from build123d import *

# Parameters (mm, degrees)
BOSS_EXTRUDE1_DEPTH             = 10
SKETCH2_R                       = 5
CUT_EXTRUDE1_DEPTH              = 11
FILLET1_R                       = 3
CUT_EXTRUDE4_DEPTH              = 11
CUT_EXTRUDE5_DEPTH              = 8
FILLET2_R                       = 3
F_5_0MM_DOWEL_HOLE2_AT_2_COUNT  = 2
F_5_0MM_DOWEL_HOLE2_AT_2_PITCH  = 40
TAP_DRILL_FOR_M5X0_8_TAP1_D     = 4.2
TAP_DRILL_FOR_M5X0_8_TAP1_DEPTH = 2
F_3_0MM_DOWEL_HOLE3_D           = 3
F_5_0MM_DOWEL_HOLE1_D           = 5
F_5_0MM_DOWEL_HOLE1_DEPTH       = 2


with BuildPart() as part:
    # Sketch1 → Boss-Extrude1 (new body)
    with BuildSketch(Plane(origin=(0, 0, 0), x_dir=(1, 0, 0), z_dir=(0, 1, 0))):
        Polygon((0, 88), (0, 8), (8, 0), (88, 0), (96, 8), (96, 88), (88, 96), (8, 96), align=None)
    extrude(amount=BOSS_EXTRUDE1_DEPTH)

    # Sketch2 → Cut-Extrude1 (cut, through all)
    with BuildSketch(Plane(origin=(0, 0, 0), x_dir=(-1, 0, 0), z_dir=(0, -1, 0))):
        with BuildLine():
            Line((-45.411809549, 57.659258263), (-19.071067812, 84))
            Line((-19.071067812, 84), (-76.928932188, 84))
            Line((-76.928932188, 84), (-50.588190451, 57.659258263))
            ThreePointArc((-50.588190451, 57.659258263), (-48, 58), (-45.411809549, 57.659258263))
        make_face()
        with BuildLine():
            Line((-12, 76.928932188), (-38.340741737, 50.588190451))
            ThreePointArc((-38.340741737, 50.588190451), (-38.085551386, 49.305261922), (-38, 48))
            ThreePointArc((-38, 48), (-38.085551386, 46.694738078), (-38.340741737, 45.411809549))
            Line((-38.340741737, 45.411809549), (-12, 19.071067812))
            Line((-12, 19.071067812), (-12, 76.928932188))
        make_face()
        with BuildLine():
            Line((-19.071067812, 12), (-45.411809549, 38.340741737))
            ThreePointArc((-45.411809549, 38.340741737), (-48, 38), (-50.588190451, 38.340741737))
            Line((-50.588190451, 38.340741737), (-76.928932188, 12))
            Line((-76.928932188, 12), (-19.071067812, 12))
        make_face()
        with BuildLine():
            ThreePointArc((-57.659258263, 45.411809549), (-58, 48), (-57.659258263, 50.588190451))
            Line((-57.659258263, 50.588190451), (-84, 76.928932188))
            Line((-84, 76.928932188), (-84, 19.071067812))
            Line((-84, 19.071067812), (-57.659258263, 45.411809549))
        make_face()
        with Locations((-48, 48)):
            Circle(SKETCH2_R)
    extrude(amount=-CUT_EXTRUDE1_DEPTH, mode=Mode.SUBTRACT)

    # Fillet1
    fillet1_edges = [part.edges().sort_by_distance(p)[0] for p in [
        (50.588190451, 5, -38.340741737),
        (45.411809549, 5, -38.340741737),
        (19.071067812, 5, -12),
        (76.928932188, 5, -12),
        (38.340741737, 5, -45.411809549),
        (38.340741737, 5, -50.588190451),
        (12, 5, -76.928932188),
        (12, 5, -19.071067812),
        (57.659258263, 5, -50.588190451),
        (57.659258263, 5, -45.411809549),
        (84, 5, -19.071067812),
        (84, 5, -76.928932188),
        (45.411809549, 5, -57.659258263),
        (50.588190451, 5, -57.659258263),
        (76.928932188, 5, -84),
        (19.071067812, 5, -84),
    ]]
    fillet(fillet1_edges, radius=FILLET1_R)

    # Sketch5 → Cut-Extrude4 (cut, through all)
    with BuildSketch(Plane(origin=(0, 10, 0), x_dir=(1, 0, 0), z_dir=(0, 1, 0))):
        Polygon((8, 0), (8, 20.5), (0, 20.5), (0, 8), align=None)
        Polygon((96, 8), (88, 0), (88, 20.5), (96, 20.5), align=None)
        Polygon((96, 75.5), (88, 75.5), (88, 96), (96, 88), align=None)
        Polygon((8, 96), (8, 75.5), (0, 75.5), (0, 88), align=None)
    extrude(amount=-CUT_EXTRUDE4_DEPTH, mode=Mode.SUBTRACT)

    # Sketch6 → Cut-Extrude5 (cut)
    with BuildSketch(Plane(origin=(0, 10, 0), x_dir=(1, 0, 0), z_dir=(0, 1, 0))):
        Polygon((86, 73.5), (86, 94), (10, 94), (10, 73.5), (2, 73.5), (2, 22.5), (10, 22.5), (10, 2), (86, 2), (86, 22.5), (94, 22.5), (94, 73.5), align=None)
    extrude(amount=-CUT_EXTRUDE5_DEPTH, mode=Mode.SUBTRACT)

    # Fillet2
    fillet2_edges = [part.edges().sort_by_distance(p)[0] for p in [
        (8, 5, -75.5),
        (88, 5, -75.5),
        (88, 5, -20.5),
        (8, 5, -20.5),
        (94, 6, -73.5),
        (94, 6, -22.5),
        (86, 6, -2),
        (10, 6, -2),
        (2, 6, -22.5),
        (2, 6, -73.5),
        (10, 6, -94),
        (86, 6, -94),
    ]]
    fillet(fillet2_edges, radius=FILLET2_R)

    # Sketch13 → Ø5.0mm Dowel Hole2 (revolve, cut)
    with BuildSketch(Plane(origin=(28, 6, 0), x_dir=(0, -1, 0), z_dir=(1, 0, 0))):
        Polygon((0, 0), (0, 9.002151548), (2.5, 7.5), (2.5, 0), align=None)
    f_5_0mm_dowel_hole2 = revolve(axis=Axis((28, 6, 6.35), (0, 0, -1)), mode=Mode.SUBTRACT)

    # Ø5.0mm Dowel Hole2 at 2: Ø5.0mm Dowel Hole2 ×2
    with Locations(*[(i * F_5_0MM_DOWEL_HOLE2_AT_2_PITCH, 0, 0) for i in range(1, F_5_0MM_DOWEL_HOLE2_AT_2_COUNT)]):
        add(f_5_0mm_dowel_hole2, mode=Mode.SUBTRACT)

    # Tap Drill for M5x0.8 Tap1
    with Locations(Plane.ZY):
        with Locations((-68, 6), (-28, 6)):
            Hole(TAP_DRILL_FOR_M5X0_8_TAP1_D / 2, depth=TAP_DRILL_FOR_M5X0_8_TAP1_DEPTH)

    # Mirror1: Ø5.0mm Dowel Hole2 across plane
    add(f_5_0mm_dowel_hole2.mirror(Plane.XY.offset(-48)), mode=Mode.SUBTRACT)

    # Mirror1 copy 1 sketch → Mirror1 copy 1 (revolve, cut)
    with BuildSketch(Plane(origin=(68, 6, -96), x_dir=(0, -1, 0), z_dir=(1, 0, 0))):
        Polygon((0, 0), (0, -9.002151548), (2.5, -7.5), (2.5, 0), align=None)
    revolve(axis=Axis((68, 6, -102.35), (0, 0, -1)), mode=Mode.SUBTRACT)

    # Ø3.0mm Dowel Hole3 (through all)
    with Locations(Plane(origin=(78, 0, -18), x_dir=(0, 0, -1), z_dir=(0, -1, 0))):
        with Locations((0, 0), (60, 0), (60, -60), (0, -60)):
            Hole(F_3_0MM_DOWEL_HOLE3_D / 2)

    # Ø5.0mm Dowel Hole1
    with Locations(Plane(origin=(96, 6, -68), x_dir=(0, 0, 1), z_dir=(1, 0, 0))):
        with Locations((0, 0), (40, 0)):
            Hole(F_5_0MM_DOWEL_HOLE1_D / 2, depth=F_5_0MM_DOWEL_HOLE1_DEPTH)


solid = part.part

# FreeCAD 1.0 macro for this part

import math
import FreeCAD as App
import Part
import Sketcher
from FreeCAD import Vector
Q = App.Units.Quantity


def edges_at(feature, points):
    """Names of the edges that pass closest to the given points."""
    edges = feature.Shape.Edges
    near = lambda p: min(range(len(edges)), key=lambda i: edges[i].distToShape(Part.Vertex(*p))[0])
    return sorted({f"Edge{near(p) + 1}" for p in points})


def add_polygon(sketch, points):
    """Adds a closed chain of lines whose ends are joined by coincident constraints."""
    first, n = sketch.GeometryCount, len(points)
    for a, b in zip(points, points[1:] + points[:1]):
        sketch.addGeometry(Part.LineSegment(App.Vector(*a, 0), App.Vector(*b, 0)), False)
    for i in range(n):
        sketch.addConstraint(Sketcher.Constraint("Coincident", first + i, 2, first + (i + 1) % n, 1))

doc = App.newDocument("Part")
body = doc.addObject("PartDesign::Body", "Body")

sketch1 = doc.addObject("Sketcher::SketchObject", "Sketch")
body.addObject(sketch1)
sketch1.AttachmentSupport = (doc.XZ_Plane, [""])
sketch1.MapMode = "FlatFace"
add_polygon(sketch1, [(0, -88), (0, -8), (8, 0), (88, 0), (96, -8), (96, -88), (88, -96), (8, -96)])
sketch1.addConstraint([
    Sketcher.Constraint("Vertical", 0),
    Sketcher.Constraint("Horizontal", 2),
    Sketcher.Constraint("Vertical", 4),
    Sketcher.Constraint("Horizontal", 6),
    Sketcher.Constraint("PointOnObject", 0, 2, -2),
    Sketcher.Constraint("PointOnObject", 1, 2, -1),
    Sketcher.Constraint("Perpendicular", 1, 3),
    Sketcher.Constraint("Perpendicular", 3, 5),
    Sketcher.Constraint("Perpendicular", 5, 7),
    Sketcher.Constraint("Horizontal", 0, 2, 3, 2),
    Sketcher.Constraint("Horizontal", 4, 2, 7, 2),
    Sketcher.Constraint("Vertical", 2, 2, 5, 2),
    Sketcher.Constraint("Vertical", 1, 2, 6, 2),
    Sketcher.Constraint("Equal", 6, 0),
    Sketcher.Constraint("DistanceX", 2, 1, 2, 2, Q("80 mm")),
    Sketcher.Constraint("DistanceY", 0, 2, -1, 1, Q("8 mm")),
])
pad1 = doc.addObject("PartDesign::Pad", "Pad")
body.addObject(pad1)
pad1.Profile = sketch1
pad1.Length = 10
pad1.Reversed = True

sketch2 = doc.addObject("Sketcher::SketchObject", "Sketch001")
body.addObject(sketch2)
sketch2.AttachmentSupport = (doc.XZ_Plane, [""])
sketch2.MapMode = "FlatFace"
sketch2.addGeometry([
    Part.LineSegment(Vector(45.4, -57.7, 0), Vector(19.1, -84, 0)),
    Part.LineSegment(Vector(19.1, -84, 0), Vector(76.9, -84, 0)),
    Part.LineSegment(Vector(76.9, -84, 0), Vector(50.6, -57.7, 0)),
    Part.ArcOfCircle(Part.Circle(Vector(48, -48, 0), Vector(0, 0, 1), 10), math.radians(-105), math.radians(-75)),
    Part.LineSegment(Vector(12, -76.9, 0), Vector(38.3, -50.6, 0)),
    Part.ArcOfCircle(Part.Circle(Vector(48, -48, 0), Vector(0, 0, 1), 10), math.radians(180), math.radians(195)),
    Part.ArcOfCircle(Part.Circle(Vector(48, -48, 0), Vector(0, 0, 1), 10), math.radians(165), math.radians(180)),
    Part.LineSegment(Vector(38.3, -45.4, 0), Vector(12, -19.1, 0)),
    Part.LineSegment(Vector(12, -19.1, 0), Vector(12, -76.9, 0)),
    Part.LineSegment(Vector(19.1, -12, 0), Vector(45.4, -38.3, 0)),
    Part.ArcOfCircle(Part.Circle(Vector(48, -48, 0), Vector(0, 0, 1), 10), math.radians(75), math.radians(105)),
    Part.LineSegment(Vector(50.6, -38.3, 0), Vector(76.9, -12, 0)),
    Part.LineSegment(Vector(76.9, -12, 0), Vector(19.1, -12, 0)),
    Part.ArcOfCircle(Part.Circle(Vector(48, -48, 0), Vector(0, 0, 1), 10), math.radians(-15), math.radians(15)),
    Part.LineSegment(Vector(57.7, -50.6, 0), Vector(84, -76.9, 0)),
    Part.LineSegment(Vector(84, -76.9, 0), Vector(84, -19.1, 0)),
    Part.LineSegment(Vector(84, -19.1, 0), Vector(57.7, -45.4, 0)),
    Part.Circle(Vector(48, -48, 0), Vector(0, 0, 1), 5),
], False)
sketch2.addConstraint([
    Sketcher.Constraint("Coincident", 0, 2, 1, 1),
    Sketcher.Constraint("Coincident", 1, 2, 2, 1),
    Sketcher.Constraint("Coincident", 2, 2, 3, 2),
    Sketcher.Constraint("Coincident", 3, 1, 0, 1),
    Sketcher.Constraint("Coincident", 4, 2, 5, 2),
    Sketcher.Constraint("Tangent", 5, 1, 6, 2),
    Sketcher.Constraint("Coincident", 6, 1, 7, 1),
    Sketcher.Constraint("Coincident", 7, 2, 8, 1),
    Sketcher.Constraint("Coincident", 8, 2, 4, 1),
    Sketcher.Constraint("Coincident", 9, 2, 10, 2),
    Sketcher.Constraint("Coincident", 10, 1, 11, 1),
    Sketcher.Constraint("Coincident", 11, 2, 12, 1),
    Sketcher.Constraint("Coincident", 12, 2, 9, 1),
    Sketcher.Constraint("Coincident", 13, 1, 14, 1),
    Sketcher.Constraint("Coincident", 14, 2, 15, 1),
    Sketcher.Constraint("Coincident", 15, 2, 16, 1),
    Sketcher.Constraint("Coincident", 16, 2, 13, 2),
    Sketcher.Constraint("Horizontal", 1),
    Sketcher.Constraint("Vertical", 8),
    Sketcher.Constraint("Horizontal", 12),
    Sketcher.Constraint("Vertical", 15),
    Sketcher.Constraint("Coincident", 5, 3, 3, 3),
    Sketcher.Constraint("Coincident", 10, 3, 3, 3),
    Sketcher.Constraint("Coincident", 13, 3, 3, 3),
    Sketcher.Constraint("Coincident", 17, 3, 3, 3),
    Sketcher.Constraint("Equal", 3, 5),
    Sketcher.Constraint("Equal", 5, 6),
    Sketcher.Constraint("Equal", 6, 10),
    Sketcher.Constraint("Equal", 10, 13),
    Sketcher.Constraint("Perpendicular", 0, 2),
    Sketcher.Constraint("Perpendicular", 2, 4),
    Sketcher.Constraint("Perpendicular", 4, 7),
    Sketcher.Constraint("Parallel", 7, 9),
    Sketcher.Constraint("Perpendicular", 9, 11),
    Sketcher.Constraint("Perpendicular", 11, 14),
    Sketcher.Constraint("Perpendicular", 14, 16),
    Sketcher.Constraint("Horizontal", 2, 2, 3, 1),
    Sketcher.Constraint("Horizontal", 17, 3, 5, 1),
    Sketcher.Constraint("Horizontal", 9, 2, 10, 1),
    Sketcher.Constraint("Horizontal", 4, 2, 13, 1),
    Sketcher.Constraint("Horizontal", 8, 2, 14, 2),
    Sketcher.Constraint("Horizontal", 7, 2, 15, 2),
    Sketcher.Constraint("Horizontal", 6, 1, 16, 2),
    Sketcher.Constraint("Vertical", 4, 2, 6, 1),
    Sketcher.Constraint("Vertical", 3, 1, 9, 2),
    Sketcher.Constraint("Vertical", 1, 2, 11, 2),
    Sketcher.Constraint("Equal", 12, 8),
    Sketcher.Constraint("Equal", 2, 4),
    Sketcher.Constraint("Diameter", 17, Q("10 mm")),
    Sketcher.Constraint("Radius", 3, Q("10 mm")),
    Sketcher.Constraint("DistanceX", -1, 1, 3, 3, Q("48 mm")),
    Sketcher.Constraint("DistanceY", 3, 3, -1, 1, Q("48 mm")),
    Sketcher.Constraint("DistanceY", 0, 2, -1, 1, Q("84 mm")),
    Sketcher.Constraint("DistanceX", 1, 1, 1, 2, Q("57.857864 mm")),
])
pocket1 = doc.addObject("PartDesign::Pocket", "Pocket")
body.addObject(pocket1)
pocket1.Profile = sketch2
pocket1.Type = "ThroughAll"
doc.recompute()

fillet = doc.addObject("PartDesign::Fillet", "Fillet")
body.addObject(fillet)
fillet.Base = (pocket1, edges_at(pocket1, [
    (50.588, 5, -38.341),
    (45.412, 5, -38.341),
    (19.071, 5, -12),
    (76.929, 5, -12),
    (38.341, 5, -45.412),
    (38.341, 5, -50.588),
    (12, 5, -76.929),
    (12, 5, -19.071),
    (57.659, 5, -50.588),
    (57.659, 5, -45.412),
    (84, 5, -19.071),
    (84, 5, -76.929),
    (45.412, 5, -57.659),
    (50.588, 5, -57.659),
    (76.929, 5, -84),
    (19.071, 5, -84),
]))
fillet.Radius = 3

sketch3 = doc.addObject("Sketcher::SketchObject", "Sketch002")
body.addObject(sketch3)
sketch3.AttachmentSupport = (doc.XZ_Plane, [""])
sketch3.MapMode = "FlatFace"
sketch3.AttachmentOffset = App.Placement(Vector(0, 0, -10), App.Rotation())
add_polygon(sketch3, [(8, 0), (8, -20), (0, -20), (0, -8)])
add_polygon(sketch3, [(88, 0), (96, -8), (96, -20), (88, -20)])
add_polygon(sketch3, [(88, -76), (96, -76), (96, -88), (88, -96)])
add_polygon(sketch3, [(8, -76), (8, -96), (0, -88), (0, -76)])
sketch3.addConstraint([
    Sketcher.Constraint("Vertical", 0),
    Sketcher.Constraint("Horizontal", 1),
    Sketcher.Constraint("Vertical", 2),
    Sketcher.Constraint("Vertical", 5),
    Sketcher.Constraint("Horizontal", 6),
    Sketcher.Constraint("Vertical", 7),
    Sketcher.Constraint("Horizontal", 8),
    Sketcher.Constraint("Vertical", 9),
    Sketcher.Constraint("Vertical", 11),
    Sketcher.Constraint("Vertical", 12),
    Sketcher.Constraint("Vertical", 14),
    Sketcher.Constraint("Horizontal", 15),
    Sketcher.Constraint("PointOnObject", 1, 2, -2),
    Sketcher.Constraint("PointOnObject", 3, 2, -1),
    Sketcher.Constraint("PointOnObject", 7, 2, -1),
    Sketcher.Constraint("PointOnObject", 13, 2, -2),
    Sketcher.Constraint("Perpendicular", 3, 4),
    Sketcher.Constraint("Perpendicular", 4, 10),
    Sketcher.Constraint("Perpendicular", 10, 13),
    Sketcher.Constraint("Horizontal", 2, 2, 4, 2),
    Sketcher.Constraint("Horizontal", 1, 2, 5, 2),
    Sketcher.Constraint("Horizontal", 10, 2, 12, 2),
    Sketcher.Constraint("Horizontal", 9, 2, 13, 2),
    Sketcher.Constraint("Horizontal", 11, 2, 14, 2),
    Sketcher.Constraint("Vertical", 5, 2, 8, 2),
    Sketcher.Constraint("Vertical", 7, 2, 10, 2),
    Sketcher.Constraint("Vertical", 3, 2, 12, 2),
    Sketcher.Constraint("Equal", 5, 9),
    Sketcher.Constraint("DistanceX", 1, 2, 1, 1, Q("8 mm")),
    Sketcher.Constraint("DistanceY", 0, 2, 0, 1, Q("20.5 mm")),
    Sketcher.Constraint("DistanceX", -1, 1, 4, 2, Q("96 mm")),
    Sketcher.Constraint("DistanceY", 9, 2, -1, 1, Q("88 mm")),
])
pocket2 = doc.addObject("PartDesign::Pocket", "Pocket001")
body.addObject(pocket2)
pocket2.Profile = sketch3
pocket2.Type = "ThroughAll"
pocket2.Reversed = True

sketch4 = doc.addObject("Sketcher::SketchObject", "Sketch003")
body.addObject(sketch4)
sketch4.AttachmentSupport = (doc.XZ_Plane, [""])
sketch4.MapMode = "FlatFace"
sketch4.AttachmentOffset = App.Placement(Vector(0, 0, -10), App.Rotation())
add_polygon(sketch4, [(86, -74), (86, -94), (10, -94), (10, -74), (2, -74), (2, -22), (10, -22), (10, -2), (86, -2), (86, -22), (94, -22), (94, -74)])
sketch4.addConstraint([
    Sketcher.Constraint("Vertical", 0),
    Sketcher.Constraint("Horizontal", 1),
    Sketcher.Constraint("Vertical", 2),
    Sketcher.Constraint("Horizontal", 3),
    Sketcher.Constraint("Vertical", 4),
    Sketcher.Constraint("Horizontal", 5),
    Sketcher.Constraint("Vertical", 6),
    Sketcher.Constraint("Horizontal", 7),
    Sketcher.Constraint("Vertical", 8),
    Sketcher.Constraint("Horizontal", 9),
    Sketcher.Constraint("Vertical", 10),
    Sketcher.Constraint("Horizontal", 11),
    Sketcher.Constraint("Horizontal", 5, 2, 8, 2),
    Sketcher.Constraint("Horizontal", 3, 2, 10, 2),
    Sketcher.Constraint("Vertical", 2, 2, 5, 2),
    Sketcher.Constraint("Vertical", 0, 2, 7, 2),
    Sketcher.Constraint("Equal", 5, 9),
    Sketcher.Constraint("Equal", 2, 6),
    Sketcher.Constraint("DistanceX", 1, 2, 1, 1, Q("76 mm")),
    Sketcher.Constraint("DistanceX", 3, 2, 3, 1, Q("8 mm")),
    Sketcher.Constraint("DistanceY", 4, 1, 4, 2, Q("51 mm")),
    Sketcher.Constraint("DistanceY", 0, 2, 0, 1, Q("20.5 mm")),
    Sketcher.Constraint("DistanceX", -1, 1, 0, 2, Q("86 mm")),
    Sketcher.Constraint("DistanceY", 0, 2, -1, 1, Q("94 mm")),
])
pocket3 = doc.addObject("PartDesign::Pocket", "Pocket002")
body.addObject(pocket3)
pocket3.Profile = sketch4
pocket3.Length = 8
pocket3.Reversed = True
doc.recompute()

fillet2 = doc.addObject("PartDesign::Fillet", "Fillet001")
body.addObject(fillet2)
fillet2.Base = (pocket3, edges_at(pocket3, [
    (8, 5, -75.5),
    (88, 5, -75.5),
    (88, 5, -20.5),
    (8, 5, -20.5),
    (94, 6, -73.5),
    (94, 6, -22.5),
    (86, 6, -2),
    (10, 6, -2),
    (2, 6, -22.5),
    (2, 6, -73.5),
    (10, 6, -94),
    (86, 6, -94),
]))
fillet2.Radius = 3

sketch5 = doc.addObject("Sketcher::SketchObject", "Sketch004")
body.addObject(sketch5)
sketch5.AttachmentSupport = (doc.YZ_Plane, [""])
sketch5.MapMode = "FlatFace"
sketch5.AttachmentOffset = App.Placement(Vector(0, 0, 28), App.Rotation())
add_polygon(sketch5, [(6, -9), (6, 0), (3.5, 0), (3.5, -7.5)])
sketch5.addGeometry(Part.LineSegment(Vector(6, 0, 0), Vector(6, -9, 0)), True)
sketch5.addConstraint([
    Sketcher.Constraint("Vertical", 0),
    Sketcher.Constraint("Horizontal", 1),
    Sketcher.Constraint("Vertical", 2),
    Sketcher.Constraint("Vertical", 4),
    Sketcher.Constraint("Coincident", 4, 1, 0, 2),
    Sketcher.Constraint("PointOnObject", 0, 2, -1),
    Sketcher.Constraint("Equal", 0, 4),
    Sketcher.Constraint("Angle", 3, Q("-31 deg")),
    Sketcher.Constraint("DistanceX", 1, 2, 1, 1, Q("2.5 mm")),
    Sketcher.Constraint("DistanceY", 2, 2, 2, 1, Q("7.5 mm")),
    Sketcher.Constraint("DistanceX", -1, 1, 0, 2, Q("6 mm")),
])
groove = doc.addObject("PartDesign::Groove", "Groove")
body.addObject(groove)
groove.Profile = sketch5
groove.ReferenceAxis = (sketch5, ["Axis0"])
groove.Angle = 360
doc.recompute()

linearpattern = doc.addObject("PartDesign::LinearPattern", "LinearPattern")
body.addObject(linearpattern)
linearpattern.Originals = [groove]
linearpattern.Direction = (doc.X_Axis, [""])
linearpattern.Mode = "offset"
linearpattern.Offset = 40
linearpattern.Occurrences = 2
body.Tip = linearpattern

sketch6 = doc.addObject("Sketcher::SketchObject", "Sketch005")
body.addObject(sketch6)
sketch6.AttachmentSupport = (doc.YZ_Plane, [""])
sketch6.MapMode = "FlatFace"
sketch6.addGeometry([
    Part.Circle(Vector(6, -68, 0), Vector(0, 0, 1), 2.1),
    Part.Circle(Vector(6, -28, 0), Vector(0, 0, 1), 2.1),
], False)
sketch6.addConstraint([
    Sketcher.Constraint("Equal", 0, 1),
    Sketcher.Constraint("Vertical", 0, 3, 1, 3),
    Sketcher.Constraint("Diameter", 0, Q("4.2 mm")),
    Sketcher.Constraint("DistanceX", -1, 1, 0, 3, Q("6 mm")),
    Sketcher.Constraint("DistanceY", 0, 3, -1, 1, Q("68 mm")),
    Sketcher.Constraint("DistanceY", 1, 3, -1, 1, Q("28 mm")),
])
doc.recompute()
hole = doc.addObject("PartDesign::Hole", "Hole")
body.addObject(hole)
hole.Profile = sketch6
hole.ThreadType = "None"
hole.Diameter = 4.2
hole.DepthType = "Dimension"
hole.Depth = 2
hole.DrillPoint = "Flat"
hole.Reversed = True
doc.recompute()

datumplane = doc.addObject("PartDesign::Plane", "DatumPlane")
body.addObject(datumplane)
datumplane.AttachmentSupport = (doc.XY_Plane, [""])
datumplane.MapMode = "FlatFace"
datumplane.AttachmentOffset = App.Placement(Vector(0, 0, -48), App.Rotation())
mirrored = doc.addObject("PartDesign::Mirrored", "Mirrored")
body.addObject(mirrored)
mirrored.Originals = [groove]
mirrored.MirrorPlane = (datumplane, [""])
body.Tip = mirrored

sketch7 = doc.addObject("Sketcher::SketchObject", "Sketch006")
body.addObject(sketch7)
sketch7.AttachmentSupport = (doc.YZ_Plane, [""])
sketch7.MapMode = "FlatFace"
sketch7.AttachmentOffset = App.Placement(Vector(0, 0, 68), App.Rotation())
add_polygon(sketch7, [(6, -96), (6, -87), (3.5, -88.5), (3.5, -96)])
sketch7.addGeometry(Part.LineSegment(Vector(6, -87, 0), Vector(6, -96, 0)), True)
sketch7.addConstraint([
    Sketcher.Constraint("Vertical", 0),
    Sketcher.Constraint("Vertical", 2),
    Sketcher.Constraint("Horizontal", 3),
    Sketcher.Constraint("Vertical", 4),
    Sketcher.Constraint("Coincident", 4, 1, 0, 2),
    Sketcher.Constraint("Horizontal", 2, 2, 4, 2),
    Sketcher.Constraint("Angle", 1, Q("-149 deg")),
    Sketcher.Constraint("DistanceX", 3, 1, 3, 2, Q("2.5 mm")),
    Sketcher.Constraint("DistanceY", 2, 2, 2, 1, Q("7.5 mm")),
    Sketcher.Constraint("DistanceX", -1, 1, 0, 2, Q("6 mm")),
    Sketcher.Constraint("DistanceY", 2, 2, -1, 1, Q("96 mm")),
])
groove2 = doc.addObject("PartDesign::Groove", "Groove001")
body.addObject(groove2)
groove2.Profile = sketch7
groove2.ReferenceAxis = (sketch7, ["Axis0"])
groove2.Angle = 360

sketch8 = doc.addObject("Sketcher::SketchObject", "Sketch007")
body.addObject(sketch8)
sketch8.AttachmentSupport = (doc.XZ_Plane, [""])
sketch8.MapMode = "FlatFace"
sketch8.addGeometry([
    Part.Circle(Vector(78, -18, 0), Vector(0, 0, 1), 1.5),
    Part.Circle(Vector(78, -78, 0), Vector(0, 0, 1), 1.5),
    Part.Circle(Vector(18, -78, 0), Vector(0, 0, 1), 1.5),
    Part.Circle(Vector(18, -18, 0), Vector(0, 0, 1), 1.5),
], False)
sketch8.addConstraint([
    Sketcher.Constraint("Equal", 0, 1),
    Sketcher.Constraint("Equal", 1, 2),
    Sketcher.Constraint("Equal", 2, 3),
    Sketcher.Constraint("Horizontal", 1, 3, 2, 3),
    Sketcher.Constraint("Horizontal", 0, 3, 3, 3),
    Sketcher.Constraint("Vertical", 0, 3, 1, 3),
    Sketcher.Constraint("Vertical", 2, 3, 3, 3),
    Sketcher.Constraint("Diameter", 0, Q("3 mm")),
    Sketcher.Constraint("DistanceX", -1, 1, 0, 3, Q("78 mm")),
    Sketcher.Constraint("DistanceY", 0, 3, -1, 1, Q("18 mm")),
    Sketcher.Constraint("DistanceY", 1, 3, -1, 1, Q("78 mm")),
    Sketcher.Constraint("DistanceX", -1, 1, 2, 3, Q("18 mm")),
])
doc.recompute()
hole2 = doc.addObject("PartDesign::Hole", "Hole001")
body.addObject(hole2)
hole2.Profile = sketch8
hole2.ThreadType = "None"
hole2.Diameter = 3
hole2.DepthType = "ThroughAll"

sketch9 = doc.addObject("Sketcher::SketchObject", "Sketch008")
body.addObject(sketch9)
sketch9.AttachmentSupport = (doc.YZ_Plane, [""])
sketch9.MapMode = "FlatFace"
sketch9.AttachmentOffset = App.Placement(Vector(0, 0, 96), App.Rotation())
sketch9.addGeometry([
    Part.Circle(Vector(6, -68, 0), Vector(0, 0, 1), 2.5),
    Part.Circle(Vector(6, -28, 0), Vector(0, 0, 1), 2.5),
], False)
sketch9.addConstraint([
    Sketcher.Constraint("Equal", 0, 1),
    Sketcher.Constraint("Vertical", 0, 3, 1, 3),
    Sketcher.Constraint("Diameter", 0, Q("5 mm")),
    Sketcher.Constraint("DistanceX", -1, 1, 0, 3, Q("6 mm")),
    Sketcher.Constraint("DistanceY", 0, 3, -1, 1, Q("68 mm")),
    Sketcher.Constraint("DistanceY", 1, 3, -1, 1, Q("28 mm")),
])
doc.recompute()
hole3 = doc.addObject("PartDesign::Hole", "Hole002")
body.addObject(hole3)
hole3.Profile = sketch9
hole3.ThreadType = "None"
hole3.Diameter = 5
hole3.DepthType = "Dimension"
hole3.Depth = 2
hole3.DrillPoint = "Flat"

doc.recompute()
